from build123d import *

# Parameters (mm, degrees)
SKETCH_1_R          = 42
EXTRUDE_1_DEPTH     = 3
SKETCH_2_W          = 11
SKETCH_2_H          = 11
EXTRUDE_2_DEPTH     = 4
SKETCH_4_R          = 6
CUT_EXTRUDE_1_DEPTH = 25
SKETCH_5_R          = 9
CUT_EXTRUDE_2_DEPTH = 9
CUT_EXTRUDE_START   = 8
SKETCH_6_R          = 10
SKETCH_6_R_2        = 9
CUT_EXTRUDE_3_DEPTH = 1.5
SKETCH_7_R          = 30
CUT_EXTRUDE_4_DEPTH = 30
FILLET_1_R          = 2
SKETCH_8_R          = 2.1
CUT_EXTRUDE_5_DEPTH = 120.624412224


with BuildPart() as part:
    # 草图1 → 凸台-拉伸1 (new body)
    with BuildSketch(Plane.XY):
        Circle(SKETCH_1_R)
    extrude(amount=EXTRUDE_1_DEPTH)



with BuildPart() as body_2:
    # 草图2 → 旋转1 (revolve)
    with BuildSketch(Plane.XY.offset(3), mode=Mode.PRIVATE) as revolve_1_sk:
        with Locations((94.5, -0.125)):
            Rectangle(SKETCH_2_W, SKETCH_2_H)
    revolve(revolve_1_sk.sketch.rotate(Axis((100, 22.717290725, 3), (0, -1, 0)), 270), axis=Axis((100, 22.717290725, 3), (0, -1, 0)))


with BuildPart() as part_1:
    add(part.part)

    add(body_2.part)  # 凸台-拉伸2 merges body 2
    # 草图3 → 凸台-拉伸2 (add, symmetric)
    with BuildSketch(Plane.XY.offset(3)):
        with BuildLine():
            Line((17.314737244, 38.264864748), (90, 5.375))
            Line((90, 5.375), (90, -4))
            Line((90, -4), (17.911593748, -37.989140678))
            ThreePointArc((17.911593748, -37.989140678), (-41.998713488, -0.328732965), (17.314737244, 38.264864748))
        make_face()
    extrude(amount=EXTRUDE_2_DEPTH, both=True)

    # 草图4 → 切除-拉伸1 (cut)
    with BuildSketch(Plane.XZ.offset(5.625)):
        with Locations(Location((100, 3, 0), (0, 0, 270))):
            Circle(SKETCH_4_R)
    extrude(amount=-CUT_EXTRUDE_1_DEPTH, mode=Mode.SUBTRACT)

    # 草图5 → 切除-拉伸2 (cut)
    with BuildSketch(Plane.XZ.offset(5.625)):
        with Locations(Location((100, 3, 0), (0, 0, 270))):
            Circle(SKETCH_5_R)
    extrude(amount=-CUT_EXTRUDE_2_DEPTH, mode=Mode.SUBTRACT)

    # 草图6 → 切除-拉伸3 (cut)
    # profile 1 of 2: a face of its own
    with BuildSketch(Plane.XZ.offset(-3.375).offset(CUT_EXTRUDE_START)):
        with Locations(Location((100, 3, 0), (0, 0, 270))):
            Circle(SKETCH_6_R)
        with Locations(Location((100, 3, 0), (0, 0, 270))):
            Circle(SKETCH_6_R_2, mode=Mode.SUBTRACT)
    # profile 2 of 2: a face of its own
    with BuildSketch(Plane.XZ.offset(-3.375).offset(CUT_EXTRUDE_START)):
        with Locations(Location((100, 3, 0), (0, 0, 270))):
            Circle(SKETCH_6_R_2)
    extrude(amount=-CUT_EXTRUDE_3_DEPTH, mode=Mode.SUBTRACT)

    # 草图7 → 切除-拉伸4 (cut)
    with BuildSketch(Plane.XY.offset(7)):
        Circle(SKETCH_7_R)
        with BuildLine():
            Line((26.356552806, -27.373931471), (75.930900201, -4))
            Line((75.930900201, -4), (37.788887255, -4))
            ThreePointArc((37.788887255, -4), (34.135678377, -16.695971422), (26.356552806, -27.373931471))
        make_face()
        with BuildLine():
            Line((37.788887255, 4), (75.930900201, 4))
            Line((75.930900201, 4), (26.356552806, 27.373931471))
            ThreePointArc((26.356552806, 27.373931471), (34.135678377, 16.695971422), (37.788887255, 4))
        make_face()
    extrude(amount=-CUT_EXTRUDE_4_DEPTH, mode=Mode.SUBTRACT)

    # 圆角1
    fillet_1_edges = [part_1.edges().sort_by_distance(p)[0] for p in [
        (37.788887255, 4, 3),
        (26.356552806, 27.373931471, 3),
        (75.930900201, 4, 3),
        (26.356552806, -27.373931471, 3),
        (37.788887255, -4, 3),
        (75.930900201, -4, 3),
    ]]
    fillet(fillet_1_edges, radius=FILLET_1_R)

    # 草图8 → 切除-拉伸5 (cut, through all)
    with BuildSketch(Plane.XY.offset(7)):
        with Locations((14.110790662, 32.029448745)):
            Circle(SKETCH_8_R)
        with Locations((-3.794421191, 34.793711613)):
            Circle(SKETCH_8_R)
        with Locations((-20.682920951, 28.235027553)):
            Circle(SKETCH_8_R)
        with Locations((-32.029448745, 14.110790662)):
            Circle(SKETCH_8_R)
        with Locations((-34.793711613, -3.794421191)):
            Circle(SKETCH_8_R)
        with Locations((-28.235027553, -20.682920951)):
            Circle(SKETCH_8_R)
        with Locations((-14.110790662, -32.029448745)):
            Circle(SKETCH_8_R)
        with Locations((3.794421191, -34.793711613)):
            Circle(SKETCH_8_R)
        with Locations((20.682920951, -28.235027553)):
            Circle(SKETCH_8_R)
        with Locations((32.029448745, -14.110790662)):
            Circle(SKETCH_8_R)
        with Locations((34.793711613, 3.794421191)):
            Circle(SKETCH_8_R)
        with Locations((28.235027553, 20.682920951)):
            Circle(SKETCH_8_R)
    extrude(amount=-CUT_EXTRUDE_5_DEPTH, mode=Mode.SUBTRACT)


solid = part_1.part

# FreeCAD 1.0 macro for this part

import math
import FreeCAD as App
import Part
import Sketcher
from FreeCAD import Vector
Q = App.Units.Quantity


def edges_at(feature, points):
    """Names of the edges that pass closest to the given points."""
    edges = feature.Shape.Edges
    near = lambda p: min(range(len(edges)), key=lambda i: edges[i].distToShape(Part.Vertex(*p))[0])
    return sorted({f"Edge{near(p) + 1}" for p in points})

doc = App.newDocument("Part")
params = doc.addObject("Spreadsheet::Sheet", "Params")
for row, (alias, value) in enumerate([
    ("sketch1_diameter", "84 mm"),
    ("pad1_length", "3 mm"),
    ("sketch2_width", "11 mm"),
    ("revolution_angle", "360 deg"),
    ("sketch3_radius", "42 mm"),
    ("pad2_length", "8 mm"),
    ("sketch4_diameter", "12 mm"),
    ("pocket1_length", "25 mm"),
    ("sketch5_diameter", "18 mm"),
    ("pocket2_length", "9 mm"),
    ("sketch6_diameter", "20 mm"),
    ("pocket3_length", "1.5 mm"),
    ("sketch7_diameter", "60 mm"),
    ("sketch7_radius", "38 mm"),
    ("pocket4_length", "30 mm"),
    ("fillet_radius", "2 mm"),
    ("sketch8_diameter", "4.2 mm"),
], start=1):
    params.set(f"A{row}", alias)
    params.set(f"B{row}", "=" + value)
    params.setAlias(f"B{row}", alias)

body = doc.addObject("PartDesign::Body", "Body")

# Sketch on XY plane
sketch1 = body.newObject("Sketcher::SketchObject", "Sketch")
sketch1.AttachmentSupport = (doc.getObject("XY_Plane"), [""])
sketch1.MapMode = "FlatFace"
sketch1.addGeometry(Part.Circle(Vector(0, 0, 0), Vector(0, 0, 1), 42), False)
sketch1.addConstraint(Sketcher.Constraint("Coincident", 0, 3, -1, 1))
sketch1.addConstraint(Sketcher.Constraint("Diameter", 0, Q("84 mm")))
sketch1.setExpression("Constraints[1]", "Params.sketch1_diameter")
pad1 = body.newObject("PartDesign::Pad", "Pad")
pad1.Profile = sketch1
pad1.setExpression("Length", "Params.pad1_length")
body2 = doc.addObject("PartDesign::Body", "Body001")

# Sketch on XY plane
sketch2 = body2.newObject("Sketcher::SketchObject", "Sketch001")
sketch2.AttachmentSupport = (doc.getObject("XY_Plane001"), [""])
sketch2.MapMode = "FlatFace"
sketch2.AttachmentOffset = App.Placement(Vector(0, 0, 3), App.Rotation())
sketch2.addGeometry(Part.LineSegment(Vector(89, 5, 0), Vector(89, -6, 0)), False)
sketch2.addGeometry(Part.LineSegment(Vector(89, -6, 0), Vector(100, -6, 0)), False)
sketch2.addGeometry(Part.LineSegment(Vector(100, -6, 0), Vector(100, 5, 0)), False)
sketch2.addGeometry(Part.LineSegment(Vector(100, 5, 0), Vector(89, 5, 0)), False)
sketch2.addGeometry(Part.LineSegment(Vector(100, 5, 0), Vector(100, -6, 0)), True)  # axis
sketch2.addConstraint(Sketcher.Constraint("Coincident", 0, 2, 1, 1))
sketch2.addConstraint(Sketcher.Constraint("Coincident", 1, 2, 2, 1))
sketch2.addConstraint(Sketcher.Constraint("Coincident", 2, 2, 3, 1))
sketch2.addConstraint(Sketcher.Constraint("Coincident", 3, 2, 0, 1))
sketch2.addConstraint(Sketcher.Constraint("Vertical", 0))
sketch2.addConstraint(Sketcher.Constraint("Horizontal", 1))
sketch2.addConstraint(Sketcher.Constraint("Vertical", 2))
sketch2.addConstraint(Sketcher.Constraint("Horizontal", 3))
sketch2.addConstraint(Sketcher.Constraint("Vertical", 4))
sketch2.addConstraint(Sketcher.Constraint("Coincident", 4, 1, 2, 2))
sketch2.addConstraint(Sketcher.Constraint("Horizontal", 0, 2, 4, 2))
sketch2.addConstraint(Sketcher.Constraint("Equal", 3, 0))
sketch2.addConstraint(Sketcher.Constraint("DistanceX", 1, 1, 1, 2, Q("11 mm")))
sketch2.addConstraint(Sketcher.Constraint("DistanceX", -1, 1, 0, 2, Q("89 mm")))
sketch2.addConstraint(Sketcher.Constraint("DistanceY", 0, 2, -1, 1, Q("5.625 mm")))
sketch2.setExpression("Constraints[12]", "Params.sketch2_width")
revolution = body2.newObject("PartDesign::Revolution", "Revolution")
revolution.Profile = sketch2
revolution.ReferenceAxis = (sketch2, ["Axis0"])
revolution.setExpression("Angle", "Params.revolution_angle")
body.AllowCompound = True
doc.recompute()

boolean = body.newObject("PartDesign::Boolean", "Boolean")
boolean.Type = "Fuse"
boolean.addObjects([body2])

# Sketch on XY plane
sketch3 = body.newObject("Sketcher::SketchObject", "Sketch002")
sketch3.AttachmentSupport = (doc.getObject("XY_Plane"), [""])
sketch3.MapMode = "FlatFace"
sketch3.AttachmentOffset = App.Placement(Vector(0, 0, 3), App.Rotation())
sketch3.addGeometry(Part.LineSegment(Vector(90, 5, 0), Vector(17, 38, 0)), False)
sketch3.addGeometry(Part.ArcOfCircle(Part.Circle(Vector(0, 0, 0), Vector(0, 0, 1), 42), math.radians(66), math.radians(295)), False)
sketch3.addGeometry(Part.LineSegment(Vector(18, -38, 0), Vector(90, -4, 0)), False)
sketch3.addGeometry(Part.LineSegment(Vector(90, -4, 0), Vector(90, 5, 0)), False)
sketch3.addConstraint(Sketcher.Constraint("Tangent", 0, 2, 1, 1))
sketch3.addConstraint(Sketcher.Constraint("Tangent", 1, 2, 2, 1))
sketch3.addConstraint(Sketcher.Constraint("Coincident", 2, 2, 3, 1))
sketch3.addConstraint(Sketcher.Constraint("Coincident", 3, 2, 0, 1))
sketch3.addConstraint(Sketcher.Constraint("Vertical", 3))
sketch3.addConstraint(Sketcher.Constraint("Coincident", 1, 3, -1, 1))
sketch3.addConstraint(Sketcher.Constraint("Radius", 1, Q("42 mm")))
sketch3.addConstraint(Sketcher.Constraint("DistanceX", -1, 1, 2, 2, Q("90 mm")))
sketch3.addConstraint(Sketcher.Constraint("DistanceY", 2, 2, -1, 1, Q("4 mm")))
sketch3.addConstraint(Sketcher.Constraint("DistanceY", 3, 1, 3, 2, Q("9.375 mm")))
sketch3.setExpression("Constraints[6]", "Params.sketch3_radius")
pad2 = body.newObject("PartDesign::Pad", "Pad001")
pad2.Profile = sketch3
pad2.setExpression("Length", "Params.pad2_length")
pad2.Midplane = True

# Sketch on XZ plane
sketch4 = body.newObject("Sketcher::SketchObject", "Sketch003")
sketch4.AttachmentSupport = (doc.getObject("XZ_Plane"), [""])
sketch4.MapMode = "FlatFace"
sketch4.AttachmentOffset = App.Placement(Vector(0, 0, 5.625), App.Rotation())
sketch4.addGeometry(Part.Circle(Vector(100, 3, 0), Vector(0, 0, 1), 6), False)
sketch4.addConstraint(Sketcher.Constraint("Diameter", 0, Q("12 mm")))
sketch4.addConstraint(Sketcher.Constraint("DistanceX", -1, 1, 0, 3, Q("100 mm")))
sketch4.addConstraint(Sketcher.Constraint("DistanceY", -1, 1, 0, 3, Q("3 mm")))
sketch4.setExpression("Constraints[0]", "Params.sketch4_diameter")
pocket1 = body.newObject("PartDesign::Pocket", "Pocket")
pocket1.Profile = sketch4
pocket1.setExpression("Length", "Params.pocket1_length")

# Sketch on XZ plane
sketch5 = body.newObject("Sketcher::SketchObject", "Sketch004")
sketch5.AttachmentSupport = (doc.getObject("XZ_Plane"), [""])
sketch5.MapMode = "FlatFace"
sketch5.AttachmentOffset = App.Placement(Vector(0, 0, 5.625), App.Rotation())
sketch5.addGeometry(Part.Circle(Vector(100, 3, 0), Vector(0, 0, 1), 9), False)
sketch5.addConstraint(Sketcher.Constraint("Diameter", 0, Q("18 mm")))
sketch5.addConstraint(Sketcher.Constraint("DistanceX", -1, 1, 0, 3, Q("100 mm")))
sketch5.addConstraint(Sketcher.Constraint("DistanceY", -1, 1, 0, 3, Q("3 mm")))
sketch5.setExpression("Constraints[0]", "Params.sketch5_diameter")
pocket2 = body.newObject("PartDesign::Pocket", "Pocket001")
pocket2.Profile = sketch5
pocket2.setExpression("Length", "Params.pocket2_length")

# Sketch on XZ plane
sketch6 = body.newObject("Sketcher::SketchObject", "Sketch005")
sketch6.AttachmentSupport = (doc.getObject("XZ_Plane"), [""])
sketch6.MapMode = "FlatFace"
sketch6.AttachmentOffset = App.Placement(Vector(0, 0, 4.625), App.Rotation())
sketch6.addGeometry(Part.Circle(Vector(100, 3, 0), Vector(0, 0, 1), 10), False)
sketch6.addConstraint(Sketcher.Constraint("Diameter", 0, Q("20 mm")))
sketch6.addConstraint(Sketcher.Constraint("DistanceX", -1, 1, 0, 3, Q("100 mm")))
sketch6.addConstraint(Sketcher.Constraint("DistanceY", -1, 1, 0, 3, Q("3 mm")))
sketch6.setExpression("Constraints[0]", "Params.sketch6_diameter")
pocket3 = body.newObject("PartDesign::Pocket", "Pocket002")
pocket3.Profile = sketch6
pocket3.setExpression("Length", "Params.pocket3_length")

# Sketch on XY plane
sketch7 = body.newObject("Sketcher::SketchObject", "Sketch006")
sketch7.AttachmentSupport = (doc.getObject("XY_Plane"), [""])
sketch7.MapMode = "FlatFace"
sketch7.AttachmentOffset = App.Placement(Vector(0, 0, 7), App.Rotation())
sketch7.addGeometry(Part.Circle(Vector(0, 0, 0), Vector(0, 0, 1), 30), False)
sketch7.addGeometry(Part.LineSegment(Vector(26, -27, 0), Vector(76, -4, 0)), False)
sketch7.addGeometry(Part.LineSegment(Vector(76, -4, 0), Vector(38, -4, 0)), False)
sketch7.addGeometry(Part.ArcOfCircle(Part.Circle(Vector(0, 0, 0), Vector(0, 0, 1), 38), math.radians(-46), math.radians(-6)), False)
sketch7.addGeometry(Part.LineSegment(Vector(38, 4, 0), Vector(76, 4, 0)), False)
sketch7.addGeometry(Part.LineSegment(Vector(76, 4, 0), Vector(26, 27, 0)), False)
sketch7.addGeometry(Part.ArcOfCircle(Part.Circle(Vector(0, 0, 0), Vector(0, 0, 1), 38), math.radians(6), math.radians(46)), False)
sketch7.addConstraint(Sketcher.Constraint("Coincident", 1, 2, 2, 1))
sketch7.addConstraint(Sketcher.Constraint("Coincident", 2, 2, 3, 2))
sketch7.addConstraint(Sketcher.Constraint("Coincident", 3, 1, 1, 1))
sketch7.addConstraint(Sketcher.Constraint("Coincident", 4, 2, 5, 1))
sketch7.addConstraint(Sketcher.Constraint("Coincident", 5, 2, 6, 2))
sketch7.addConstraint(Sketcher.Constraint("Coincident", 6, 1, 4, 1))
sketch7.addConstraint(Sketcher.Constraint("Horizontal", 2))
sketch7.addConstraint(Sketcher.Constraint("Horizontal", 4))
sketch7.addConstraint(Sketcher.Constraint("Coincident", 0, 3, -1, 1))
sketch7.addConstraint(Sketcher.Constraint("Coincident", 3, 3, -1, 1))
sketch7.addConstraint(Sketcher.Constraint("Coincident", 6, 3, -1, 1))
sketch7.addConstraint(Sketcher.Constraint("Equal", 3, 6))
sketch7.addConstraint(Sketcher.Constraint("Symmetric", 1, 2, 4, 2, -1))
sketch7.addConstraint(Sketcher.Constraint("Vertical", 3, 1, 5, 2))
sketch7.addConstraint(Sketcher.Constraint("Diameter", 0, Q("60 mm")))
sketch7.addConstraint(Sketcher.Constraint("Radius", 3, Q("38 mm")))
sketch7.addConstraint(Sketcher.Constraint("DistanceY", 1, 2, -1, 1, Q("4 mm")))
sketch7.addConstraint(Sketcher.Constraint("DistanceX", -1, 1, 1, 2, Q("75.9309 mm")))
sketch7.addConstraint(Sketcher.Constraint("DistanceY", 3, 1, -1, 1, Q("27.373931 mm")))
sketch7.setExpression("Constraints[14]", "Params.sketch7_diameter")
sketch7.setExpression("Constraints[15]", "Params.sketch7_radius")
pocket4 = body.newObject("PartDesign::Pocket", "Pocket003")
pocket4.Profile = sketch7
pocket4.setExpression("Length", "Params.pocket4_length")
doc.recompute()

fillet = body.newObject("PartDesign::Fillet", "Fillet")
fillet.Base = (pocket4, edges_at(pocket4, [
    (37.789, 4, 3),
    (26.357, 27.374, 3),
    (75.931, 4, 3),
    (26.357, -27.374, 3),
    (37.789, -4, 3),
    (75.931, -4, 3),
]))
fillet.setExpression("Radius", "Params.fillet_radius")

# Sketch on XY plane
sketch8 = body.newObject("Sketcher::SketchObject", "Sketch007")
sketch8.AttachmentSupport = (doc.getObject("XY_Plane"), [""])
sketch8.MapMode = "FlatFace"
sketch8.AttachmentOffset = App.Placement(Vector(0, 0, 7), App.Rotation())
sketch8.addGeometry(Part.Circle(Vector(14.1, 32, 0), Vector(0, 0, 1), 2.1), False)
sketch8.addGeometry(Part.Circle(Vector(-3.8, 34.8, 0), Vector(0, 0, 1), 2.1), False)
sketch8.addGeometry(Part.Circle(Vector(-20.7, 28.2, 0), Vector(0, 0, 1), 2.1), False)
sketch8.addGeometry(Part.Circle(Vector(-32, 14.1, 0), Vector(0, 0, 1), 2.1), False)
sketch8.addGeometry(Part.Circle(Vector(-34.8, -3.8, 0), Vector(0, 0, 1), 2.1), False)
sketch8.addGeometry(Part.Circle(Vector(-28.2, -20.7, 0), Vector(0, 0, 1), 2.1), False)
sketch8.addGeometry(Part.Circle(Vector(-14.1, -32, 0), Vector(0, 0, 1), 2.1), False)
sketch8.addGeometry(Part.Circle(Vector(3.8, -34.8, 0), Vector(0, 0, 1), 2.1), False)
sketch8.addGeometry(Part.Circle(Vector(20.7, -28.2, 0), Vector(0, 0, 1), 2.1), False)
sketch8.addGeometry(Part.Circle(Vector(32, -14.1, 0), Vector(0, 0, 1), 2.1), False)
sketch8.addGeometry(Part.Circle(Vector(34.8, 3.8, 0), Vector(0, 0, 1), 2.1), False)
sketch8.addGeometry(Part.Circle(Vector(28.2, 20.7, 0), Vector(0, 0, 1), 2.1), False)
sketch8.addConstraint(Sketcher.Constraint("Equal", 0, 1))
sketch8.addConstraint(Sketcher.Constraint("Equal", 1, 2))
sketch8.addConstraint(Sketcher.Constraint("Equal", 2, 3))
sketch8.addConstraint(Sketcher.Constraint("Equal", 3, 4))
sketch8.addConstraint(Sketcher.Constraint("Equal", 4, 5))
sketch8.addConstraint(Sketcher.Constraint("Equal", 5, 6))
sketch8.addConstraint(Sketcher.Constraint("Equal", 6, 7))
sketch8.addConstraint(Sketcher.Constraint("Equal", 7, 8))
sketch8.addConstraint(Sketcher.Constraint("Equal", 8, 9))
sketch8.addConstraint(Sketcher.Constraint("Equal", 9, 10))
sketch8.addConstraint(Sketcher.Constraint("Equal", 10, 11))
sketch8.addConstraint(Sketcher.Constraint("Symmetric", 0, 3, 6, 3, -1, 1))
sketch8.addConstraint(Sketcher.Constraint("Symmetric", 1, 3, 7, 3, -1, 1))
sketch8.addConstraint(Sketcher.Constraint("Symmetric", 2, 3, 8, 3, -1, 1))
sketch8.addConstraint(Sketcher.Constraint("Symmetric", 3, 3, 9, 3, -1, 1))
sketch8.addConstraint(Sketcher.Constraint("Symmetric", 4, 3, 10, 3, -1, 1))
sketch8.addConstraint(Sketcher.Constraint("Symmetric", 5, 3, 11, 3, -1, 1))
sketch8.addConstraint(Sketcher.Constraint("Diameter", 0, Q("4.2 mm")))
sketch8.addConstraint(Sketcher.Constraint("DistanceX", 2, 3, 1, 3, Q("16.8885 mm")))
sketch8.addConstraint(Sketcher.Constraint("DistanceY", 5, 3, 4, 3, Q("16.8885 mm")))
sketch8.addConstraint(Sketcher.Constraint("DistanceX", -1, 1, 0, 3, Q("14.110791 mm")))
sketch8.addConstraint(Sketcher.Constraint("DistanceY", -1, 1, 0, 3, Q("32.029449 mm")))
sketch8.addConstraint(Sketcher.Constraint("DistanceX", 1, 3, -1, 1, Q("3.794421 mm")))
sketch8.addConstraint(Sketcher.Constraint("DistanceY", -1, 1, 1, 3, Q("34.793712 mm")))
sketch8.addConstraint(Sketcher.Constraint("DistanceX", 3, 3, -1, 1, Q("32.029449 mm")))
sketch8.addConstraint(Sketcher.Constraint("DistanceY", -1, 1, 3, 3, Q("14.110791 mm")))
sketch8.addConstraint(Sketcher.Constraint("DistanceX", 4, 3, -1, 1, Q("34.793712 mm")))
sketch8.addConstraint(Sketcher.Constraint("DistanceY", 4, 3, -1, 1, Q("3.794421 mm")))
sketch8.addConstraint(Sketcher.Constraint("DistanceY", 2, 3, 0, 3, Q("3.794421 mm")))
sketch8.addConstraint(Sketcher.Constraint("DistanceX", 3, 3, 5, 3, Q("3.794421 mm")))
sketch8.setExpression("Constraints[17]", "Params.sketch8_diameter")
pocket5 = body.newObject("PartDesign::Pocket", "Pocket004")
pocket5.Profile = sketch8
pocket5.Type = "ThroughAll"

doc.recompute()
